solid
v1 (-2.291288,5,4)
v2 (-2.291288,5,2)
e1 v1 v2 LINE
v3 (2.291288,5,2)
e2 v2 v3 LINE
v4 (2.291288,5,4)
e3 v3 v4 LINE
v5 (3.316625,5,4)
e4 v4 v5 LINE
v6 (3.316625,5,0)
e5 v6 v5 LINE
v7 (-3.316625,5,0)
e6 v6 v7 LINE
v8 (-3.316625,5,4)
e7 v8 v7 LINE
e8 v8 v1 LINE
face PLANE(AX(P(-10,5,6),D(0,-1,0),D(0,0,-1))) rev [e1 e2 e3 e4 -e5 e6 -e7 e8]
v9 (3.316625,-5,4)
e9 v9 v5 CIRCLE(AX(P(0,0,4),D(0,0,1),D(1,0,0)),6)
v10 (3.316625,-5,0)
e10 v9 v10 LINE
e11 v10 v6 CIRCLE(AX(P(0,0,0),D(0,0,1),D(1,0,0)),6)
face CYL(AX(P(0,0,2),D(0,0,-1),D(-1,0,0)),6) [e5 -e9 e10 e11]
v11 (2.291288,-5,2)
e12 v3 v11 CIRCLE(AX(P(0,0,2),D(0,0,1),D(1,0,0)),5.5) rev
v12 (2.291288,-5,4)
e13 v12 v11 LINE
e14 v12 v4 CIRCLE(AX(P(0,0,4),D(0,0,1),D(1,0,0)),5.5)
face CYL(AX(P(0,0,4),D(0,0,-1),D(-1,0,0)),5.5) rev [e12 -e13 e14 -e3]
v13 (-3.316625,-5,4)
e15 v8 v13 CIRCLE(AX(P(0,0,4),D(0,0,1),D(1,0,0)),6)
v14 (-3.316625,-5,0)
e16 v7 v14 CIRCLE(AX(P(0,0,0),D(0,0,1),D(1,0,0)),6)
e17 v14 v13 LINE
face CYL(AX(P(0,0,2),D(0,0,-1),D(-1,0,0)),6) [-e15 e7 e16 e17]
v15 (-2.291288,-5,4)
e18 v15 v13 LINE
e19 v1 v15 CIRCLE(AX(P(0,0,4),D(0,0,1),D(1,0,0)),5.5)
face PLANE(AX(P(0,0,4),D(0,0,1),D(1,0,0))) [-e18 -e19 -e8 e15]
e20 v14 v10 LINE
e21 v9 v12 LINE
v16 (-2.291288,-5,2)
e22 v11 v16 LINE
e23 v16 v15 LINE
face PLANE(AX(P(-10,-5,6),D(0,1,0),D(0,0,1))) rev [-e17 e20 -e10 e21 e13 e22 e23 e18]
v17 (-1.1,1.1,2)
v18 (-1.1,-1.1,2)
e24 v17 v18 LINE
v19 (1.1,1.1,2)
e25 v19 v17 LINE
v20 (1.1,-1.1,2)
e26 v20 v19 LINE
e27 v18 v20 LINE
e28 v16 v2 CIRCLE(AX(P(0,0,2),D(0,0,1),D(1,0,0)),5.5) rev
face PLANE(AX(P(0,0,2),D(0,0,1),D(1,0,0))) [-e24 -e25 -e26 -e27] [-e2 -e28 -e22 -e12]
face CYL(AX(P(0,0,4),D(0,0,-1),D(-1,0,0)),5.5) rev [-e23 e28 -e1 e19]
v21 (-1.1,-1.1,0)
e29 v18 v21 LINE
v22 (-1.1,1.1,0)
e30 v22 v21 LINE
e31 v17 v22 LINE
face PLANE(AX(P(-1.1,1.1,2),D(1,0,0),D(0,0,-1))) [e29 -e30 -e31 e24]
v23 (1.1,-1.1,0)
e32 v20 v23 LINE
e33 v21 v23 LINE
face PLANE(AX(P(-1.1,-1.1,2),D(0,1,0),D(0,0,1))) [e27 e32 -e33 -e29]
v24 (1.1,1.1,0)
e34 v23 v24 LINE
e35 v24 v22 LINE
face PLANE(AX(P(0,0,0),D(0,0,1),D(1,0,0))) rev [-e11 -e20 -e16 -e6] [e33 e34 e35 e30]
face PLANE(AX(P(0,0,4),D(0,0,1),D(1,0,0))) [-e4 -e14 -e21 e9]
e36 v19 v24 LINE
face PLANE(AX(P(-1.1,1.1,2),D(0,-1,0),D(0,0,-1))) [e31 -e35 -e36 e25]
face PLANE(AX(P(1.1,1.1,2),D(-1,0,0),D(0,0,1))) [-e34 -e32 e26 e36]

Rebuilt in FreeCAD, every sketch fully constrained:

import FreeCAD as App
import Part
import Sketcher
from FreeCAD import Vector
Q = App.Units.Quantity


def add_polygon(sketch, points):
    """Adds a closed chain of lines whose ends are joined by coincident constraints."""
    first, n = sketch.GeometryCount, len(points)
    for a, b in zip(points, points[1:] + points[:1]):
        sketch.addGeometry(Part.LineSegment(App.Vector(*a, 0), App.Vector(*b, 0)), False)
    for i in range(n):
        sketch.addConstraint(Sketcher.Constraint("Coincident", first + i, 2, first + (i + 1) % n, 1))

doc = App.newDocument("Part")
params = doc.addObject("Spreadsheet::Sheet", "Params")
for row, (alias, value) in enumerate([
    ("sketch1_diameter", "12 mm"),
    ("pad1_length", "2 mm"),
    ("sketch2_diameter", "12 mm"),
    ("sketch2_diameter2", "11 mm"),
    ("pad2_length", "2 mm"),
    ("sketch3_width", "24 mm"),
    ("sketch3_width2", "20 mm"),
    ("sketch3_height", "12 mm"),
    ("sketch3_height2", "10 mm"),
    ("pocket1_length", "6 mm"),
    ("sketch4_width", "2.2 mm"),
    ("pocket2_length", "2 mm"),
], start=1):
    params.set(f"A{row}", alias)
    params.set(f"B{row}", "=" + value)
    params.setAlias(f"B{row}", alias)

body = doc.addObject("PartDesign::Body", "Body")

# Sketch on XY plane
sketch1 = body.newObject("Sketcher::SketchObject", "Sketch")
sketch1.AttachmentSupport = (doc.getObject("XY_Plane"), [""])
sketch1.MapMode = "FlatFace"
sketch1.addGeometry(Part.Circle(Vector(0, 0, 0), Vector(0, 0, 1), 6), False)
sketch1.addConstraint([
    Sketcher.Constraint("Coincident", 0, 3, -1, 1),
    Sketcher.Constraint("Diameter", 0, Q("12 mm")),
])
sketch1.setExpression("Constraints[1]", "Params.sketch1_diameter")
pad1 = body.newObject("PartDesign::Pad", "Pad")
pad1.Profile = sketch1
pad1.setExpression("Length", "Params.pad1_length")

# Sketch on XY plane
sketch2 = body.newObject("Sketcher::SketchObject", "Sketch001")
sketch2.AttachmentSupport = (doc.getObject("XY_Plane"), [""])
sketch2.MapMode = "FlatFace"
sketch2.AttachmentOffset = App.Placement(Vector(0, 0, 2), App.Rotation())
sketch2.addGeometry([
    Part.Circle(Vector(0, 0, 0), Vector(0, 0, 1), 6),
    Part.Circle(Vector(0, 0, 0), Vector(0, 0, 1), 6),
], False)
sketch2.addConstraint([
    Sketcher.Constraint("Coincident", 0, 3, -1, 1),
    Sketcher.Constraint("Coincident", 1, 3, -1, 1),
    Sketcher.Constraint("Diameter", 0, Q("12 mm")),
    Sketcher.Constraint("Diameter", 1, Q("11 mm")),
])
sketch2.setExpression("Constraints[2]", "Params.sketch2_diameter")
sketch2.setExpression("Constraints[3]", "Params.sketch2_diameter2")
pad2 = body.newObject("PartDesign::Pad", "Pad001")
pad2.Profile = sketch2
pad2.setExpression("Length", "Params.pad2_length")

# Sketch on XY plane
sketch3 = body.newObject("Sketcher::SketchObject", "Sketch002")
sketch3.AttachmentSupport = (doc.getObject("XY_Plane"), [""])
sketch3.MapMode = "FlatFace"
add_polygon(sketch3, [(-12, 6), (-12, -6), (12, -6), (12, 6)])  # lines 0-3
add_polygon(sketch3, [(10, -5), (-10, -5), (-10, 5), (10, 5)])  # lines 4-7
sketch3.addConstraint([
    Sketcher.Constraint("Vertical", 0),
    Sketcher.Constraint("Horizontal", 1),
    Sketcher.Constraint("Vertical", 2),
    Sketcher.Constraint("Horizontal", 3),
    Sketcher.Constraint("Horizontal", 4),
    Sketcher.Constraint("Vertical", 5),
    Sketcher.Constraint("Horizontal", 6),
    Sketcher.Constraint("Vertical", 7),
    Sketcher.Constraint("Symmetric", 0, 2, 2, 2, -1, 1),
    Sketcher.Constraint("Symmetric", 4, 2, 6, 2, -1, 1),
    Sketcher.Constraint("DistanceX", 1, 1, 1, 2, Q("24 mm")),
    Sketcher.Constraint("DistanceX", 4, 2, 4, 1, Q("20 mm")),
    Sketcher.Constraint("DistanceY", 0, 2, 0, 1, Q("12 mm")),
    Sketcher.Constraint("DistanceY", 5, 1, 5, 2, Q("10 mm")),
])
sketch3.setExpression("Constraints[18]", "Params.sketch3_width")
sketch3.setExpression("Constraints[19]", "Params.sketch3_width2")
sketch3.setExpression("Constraints[20]", "Params.sketch3_height")
sketch3.setExpression("Constraints[21]", "Params.sketch3_height2")
pocket1 = body.newObject("PartDesign::Pocket", "Pocket")
pocket1.Profile = sketch3
pocket1.setExpression("Length", "Params.pocket1_length")
pocket1.Reversed = True

# Sketch on XY plane
sketch4 = body.newObject("Sketcher::SketchObject", "Sketch003")
sketch4.AttachmentSupport = (doc.getObject("XY_Plane"), [""])
sketch4.MapMode = "FlatFace"
add_polygon(sketch4, [(-1.1, 1.1), (-1.1, -1.1), (1.1, -1.1), (1.1, 1.1)])  # lines 0-3
sketch4.addConstraint([
    Sketcher.Constraint("Vertical", 0),
    Sketcher.Constraint("Horizontal", 1),
    Sketcher.Constraint("Vertical", 2),
    Sketcher.Constraint("Horizontal", 3),
    Sketcher.Constraint("Symmetric", 0, 2, 2, 2, -1, 1),
    Sketcher.Constraint("Equal", 3, 0),
    Sketcher.Constraint("DistanceX", 1, 1, 1, 2, Q("2.2 mm")),
])
sketch4.setExpression("Constraints[10]", "Params.sketch4_width")
pocket2 = body.newObject("PartDesign::Pocket", "Pocket001")
pocket2.Profile = sketch4
pocket2.setExpression("Length", "Params.pocket2_length")
pocket2.Reversed = True

doc.recompute()
